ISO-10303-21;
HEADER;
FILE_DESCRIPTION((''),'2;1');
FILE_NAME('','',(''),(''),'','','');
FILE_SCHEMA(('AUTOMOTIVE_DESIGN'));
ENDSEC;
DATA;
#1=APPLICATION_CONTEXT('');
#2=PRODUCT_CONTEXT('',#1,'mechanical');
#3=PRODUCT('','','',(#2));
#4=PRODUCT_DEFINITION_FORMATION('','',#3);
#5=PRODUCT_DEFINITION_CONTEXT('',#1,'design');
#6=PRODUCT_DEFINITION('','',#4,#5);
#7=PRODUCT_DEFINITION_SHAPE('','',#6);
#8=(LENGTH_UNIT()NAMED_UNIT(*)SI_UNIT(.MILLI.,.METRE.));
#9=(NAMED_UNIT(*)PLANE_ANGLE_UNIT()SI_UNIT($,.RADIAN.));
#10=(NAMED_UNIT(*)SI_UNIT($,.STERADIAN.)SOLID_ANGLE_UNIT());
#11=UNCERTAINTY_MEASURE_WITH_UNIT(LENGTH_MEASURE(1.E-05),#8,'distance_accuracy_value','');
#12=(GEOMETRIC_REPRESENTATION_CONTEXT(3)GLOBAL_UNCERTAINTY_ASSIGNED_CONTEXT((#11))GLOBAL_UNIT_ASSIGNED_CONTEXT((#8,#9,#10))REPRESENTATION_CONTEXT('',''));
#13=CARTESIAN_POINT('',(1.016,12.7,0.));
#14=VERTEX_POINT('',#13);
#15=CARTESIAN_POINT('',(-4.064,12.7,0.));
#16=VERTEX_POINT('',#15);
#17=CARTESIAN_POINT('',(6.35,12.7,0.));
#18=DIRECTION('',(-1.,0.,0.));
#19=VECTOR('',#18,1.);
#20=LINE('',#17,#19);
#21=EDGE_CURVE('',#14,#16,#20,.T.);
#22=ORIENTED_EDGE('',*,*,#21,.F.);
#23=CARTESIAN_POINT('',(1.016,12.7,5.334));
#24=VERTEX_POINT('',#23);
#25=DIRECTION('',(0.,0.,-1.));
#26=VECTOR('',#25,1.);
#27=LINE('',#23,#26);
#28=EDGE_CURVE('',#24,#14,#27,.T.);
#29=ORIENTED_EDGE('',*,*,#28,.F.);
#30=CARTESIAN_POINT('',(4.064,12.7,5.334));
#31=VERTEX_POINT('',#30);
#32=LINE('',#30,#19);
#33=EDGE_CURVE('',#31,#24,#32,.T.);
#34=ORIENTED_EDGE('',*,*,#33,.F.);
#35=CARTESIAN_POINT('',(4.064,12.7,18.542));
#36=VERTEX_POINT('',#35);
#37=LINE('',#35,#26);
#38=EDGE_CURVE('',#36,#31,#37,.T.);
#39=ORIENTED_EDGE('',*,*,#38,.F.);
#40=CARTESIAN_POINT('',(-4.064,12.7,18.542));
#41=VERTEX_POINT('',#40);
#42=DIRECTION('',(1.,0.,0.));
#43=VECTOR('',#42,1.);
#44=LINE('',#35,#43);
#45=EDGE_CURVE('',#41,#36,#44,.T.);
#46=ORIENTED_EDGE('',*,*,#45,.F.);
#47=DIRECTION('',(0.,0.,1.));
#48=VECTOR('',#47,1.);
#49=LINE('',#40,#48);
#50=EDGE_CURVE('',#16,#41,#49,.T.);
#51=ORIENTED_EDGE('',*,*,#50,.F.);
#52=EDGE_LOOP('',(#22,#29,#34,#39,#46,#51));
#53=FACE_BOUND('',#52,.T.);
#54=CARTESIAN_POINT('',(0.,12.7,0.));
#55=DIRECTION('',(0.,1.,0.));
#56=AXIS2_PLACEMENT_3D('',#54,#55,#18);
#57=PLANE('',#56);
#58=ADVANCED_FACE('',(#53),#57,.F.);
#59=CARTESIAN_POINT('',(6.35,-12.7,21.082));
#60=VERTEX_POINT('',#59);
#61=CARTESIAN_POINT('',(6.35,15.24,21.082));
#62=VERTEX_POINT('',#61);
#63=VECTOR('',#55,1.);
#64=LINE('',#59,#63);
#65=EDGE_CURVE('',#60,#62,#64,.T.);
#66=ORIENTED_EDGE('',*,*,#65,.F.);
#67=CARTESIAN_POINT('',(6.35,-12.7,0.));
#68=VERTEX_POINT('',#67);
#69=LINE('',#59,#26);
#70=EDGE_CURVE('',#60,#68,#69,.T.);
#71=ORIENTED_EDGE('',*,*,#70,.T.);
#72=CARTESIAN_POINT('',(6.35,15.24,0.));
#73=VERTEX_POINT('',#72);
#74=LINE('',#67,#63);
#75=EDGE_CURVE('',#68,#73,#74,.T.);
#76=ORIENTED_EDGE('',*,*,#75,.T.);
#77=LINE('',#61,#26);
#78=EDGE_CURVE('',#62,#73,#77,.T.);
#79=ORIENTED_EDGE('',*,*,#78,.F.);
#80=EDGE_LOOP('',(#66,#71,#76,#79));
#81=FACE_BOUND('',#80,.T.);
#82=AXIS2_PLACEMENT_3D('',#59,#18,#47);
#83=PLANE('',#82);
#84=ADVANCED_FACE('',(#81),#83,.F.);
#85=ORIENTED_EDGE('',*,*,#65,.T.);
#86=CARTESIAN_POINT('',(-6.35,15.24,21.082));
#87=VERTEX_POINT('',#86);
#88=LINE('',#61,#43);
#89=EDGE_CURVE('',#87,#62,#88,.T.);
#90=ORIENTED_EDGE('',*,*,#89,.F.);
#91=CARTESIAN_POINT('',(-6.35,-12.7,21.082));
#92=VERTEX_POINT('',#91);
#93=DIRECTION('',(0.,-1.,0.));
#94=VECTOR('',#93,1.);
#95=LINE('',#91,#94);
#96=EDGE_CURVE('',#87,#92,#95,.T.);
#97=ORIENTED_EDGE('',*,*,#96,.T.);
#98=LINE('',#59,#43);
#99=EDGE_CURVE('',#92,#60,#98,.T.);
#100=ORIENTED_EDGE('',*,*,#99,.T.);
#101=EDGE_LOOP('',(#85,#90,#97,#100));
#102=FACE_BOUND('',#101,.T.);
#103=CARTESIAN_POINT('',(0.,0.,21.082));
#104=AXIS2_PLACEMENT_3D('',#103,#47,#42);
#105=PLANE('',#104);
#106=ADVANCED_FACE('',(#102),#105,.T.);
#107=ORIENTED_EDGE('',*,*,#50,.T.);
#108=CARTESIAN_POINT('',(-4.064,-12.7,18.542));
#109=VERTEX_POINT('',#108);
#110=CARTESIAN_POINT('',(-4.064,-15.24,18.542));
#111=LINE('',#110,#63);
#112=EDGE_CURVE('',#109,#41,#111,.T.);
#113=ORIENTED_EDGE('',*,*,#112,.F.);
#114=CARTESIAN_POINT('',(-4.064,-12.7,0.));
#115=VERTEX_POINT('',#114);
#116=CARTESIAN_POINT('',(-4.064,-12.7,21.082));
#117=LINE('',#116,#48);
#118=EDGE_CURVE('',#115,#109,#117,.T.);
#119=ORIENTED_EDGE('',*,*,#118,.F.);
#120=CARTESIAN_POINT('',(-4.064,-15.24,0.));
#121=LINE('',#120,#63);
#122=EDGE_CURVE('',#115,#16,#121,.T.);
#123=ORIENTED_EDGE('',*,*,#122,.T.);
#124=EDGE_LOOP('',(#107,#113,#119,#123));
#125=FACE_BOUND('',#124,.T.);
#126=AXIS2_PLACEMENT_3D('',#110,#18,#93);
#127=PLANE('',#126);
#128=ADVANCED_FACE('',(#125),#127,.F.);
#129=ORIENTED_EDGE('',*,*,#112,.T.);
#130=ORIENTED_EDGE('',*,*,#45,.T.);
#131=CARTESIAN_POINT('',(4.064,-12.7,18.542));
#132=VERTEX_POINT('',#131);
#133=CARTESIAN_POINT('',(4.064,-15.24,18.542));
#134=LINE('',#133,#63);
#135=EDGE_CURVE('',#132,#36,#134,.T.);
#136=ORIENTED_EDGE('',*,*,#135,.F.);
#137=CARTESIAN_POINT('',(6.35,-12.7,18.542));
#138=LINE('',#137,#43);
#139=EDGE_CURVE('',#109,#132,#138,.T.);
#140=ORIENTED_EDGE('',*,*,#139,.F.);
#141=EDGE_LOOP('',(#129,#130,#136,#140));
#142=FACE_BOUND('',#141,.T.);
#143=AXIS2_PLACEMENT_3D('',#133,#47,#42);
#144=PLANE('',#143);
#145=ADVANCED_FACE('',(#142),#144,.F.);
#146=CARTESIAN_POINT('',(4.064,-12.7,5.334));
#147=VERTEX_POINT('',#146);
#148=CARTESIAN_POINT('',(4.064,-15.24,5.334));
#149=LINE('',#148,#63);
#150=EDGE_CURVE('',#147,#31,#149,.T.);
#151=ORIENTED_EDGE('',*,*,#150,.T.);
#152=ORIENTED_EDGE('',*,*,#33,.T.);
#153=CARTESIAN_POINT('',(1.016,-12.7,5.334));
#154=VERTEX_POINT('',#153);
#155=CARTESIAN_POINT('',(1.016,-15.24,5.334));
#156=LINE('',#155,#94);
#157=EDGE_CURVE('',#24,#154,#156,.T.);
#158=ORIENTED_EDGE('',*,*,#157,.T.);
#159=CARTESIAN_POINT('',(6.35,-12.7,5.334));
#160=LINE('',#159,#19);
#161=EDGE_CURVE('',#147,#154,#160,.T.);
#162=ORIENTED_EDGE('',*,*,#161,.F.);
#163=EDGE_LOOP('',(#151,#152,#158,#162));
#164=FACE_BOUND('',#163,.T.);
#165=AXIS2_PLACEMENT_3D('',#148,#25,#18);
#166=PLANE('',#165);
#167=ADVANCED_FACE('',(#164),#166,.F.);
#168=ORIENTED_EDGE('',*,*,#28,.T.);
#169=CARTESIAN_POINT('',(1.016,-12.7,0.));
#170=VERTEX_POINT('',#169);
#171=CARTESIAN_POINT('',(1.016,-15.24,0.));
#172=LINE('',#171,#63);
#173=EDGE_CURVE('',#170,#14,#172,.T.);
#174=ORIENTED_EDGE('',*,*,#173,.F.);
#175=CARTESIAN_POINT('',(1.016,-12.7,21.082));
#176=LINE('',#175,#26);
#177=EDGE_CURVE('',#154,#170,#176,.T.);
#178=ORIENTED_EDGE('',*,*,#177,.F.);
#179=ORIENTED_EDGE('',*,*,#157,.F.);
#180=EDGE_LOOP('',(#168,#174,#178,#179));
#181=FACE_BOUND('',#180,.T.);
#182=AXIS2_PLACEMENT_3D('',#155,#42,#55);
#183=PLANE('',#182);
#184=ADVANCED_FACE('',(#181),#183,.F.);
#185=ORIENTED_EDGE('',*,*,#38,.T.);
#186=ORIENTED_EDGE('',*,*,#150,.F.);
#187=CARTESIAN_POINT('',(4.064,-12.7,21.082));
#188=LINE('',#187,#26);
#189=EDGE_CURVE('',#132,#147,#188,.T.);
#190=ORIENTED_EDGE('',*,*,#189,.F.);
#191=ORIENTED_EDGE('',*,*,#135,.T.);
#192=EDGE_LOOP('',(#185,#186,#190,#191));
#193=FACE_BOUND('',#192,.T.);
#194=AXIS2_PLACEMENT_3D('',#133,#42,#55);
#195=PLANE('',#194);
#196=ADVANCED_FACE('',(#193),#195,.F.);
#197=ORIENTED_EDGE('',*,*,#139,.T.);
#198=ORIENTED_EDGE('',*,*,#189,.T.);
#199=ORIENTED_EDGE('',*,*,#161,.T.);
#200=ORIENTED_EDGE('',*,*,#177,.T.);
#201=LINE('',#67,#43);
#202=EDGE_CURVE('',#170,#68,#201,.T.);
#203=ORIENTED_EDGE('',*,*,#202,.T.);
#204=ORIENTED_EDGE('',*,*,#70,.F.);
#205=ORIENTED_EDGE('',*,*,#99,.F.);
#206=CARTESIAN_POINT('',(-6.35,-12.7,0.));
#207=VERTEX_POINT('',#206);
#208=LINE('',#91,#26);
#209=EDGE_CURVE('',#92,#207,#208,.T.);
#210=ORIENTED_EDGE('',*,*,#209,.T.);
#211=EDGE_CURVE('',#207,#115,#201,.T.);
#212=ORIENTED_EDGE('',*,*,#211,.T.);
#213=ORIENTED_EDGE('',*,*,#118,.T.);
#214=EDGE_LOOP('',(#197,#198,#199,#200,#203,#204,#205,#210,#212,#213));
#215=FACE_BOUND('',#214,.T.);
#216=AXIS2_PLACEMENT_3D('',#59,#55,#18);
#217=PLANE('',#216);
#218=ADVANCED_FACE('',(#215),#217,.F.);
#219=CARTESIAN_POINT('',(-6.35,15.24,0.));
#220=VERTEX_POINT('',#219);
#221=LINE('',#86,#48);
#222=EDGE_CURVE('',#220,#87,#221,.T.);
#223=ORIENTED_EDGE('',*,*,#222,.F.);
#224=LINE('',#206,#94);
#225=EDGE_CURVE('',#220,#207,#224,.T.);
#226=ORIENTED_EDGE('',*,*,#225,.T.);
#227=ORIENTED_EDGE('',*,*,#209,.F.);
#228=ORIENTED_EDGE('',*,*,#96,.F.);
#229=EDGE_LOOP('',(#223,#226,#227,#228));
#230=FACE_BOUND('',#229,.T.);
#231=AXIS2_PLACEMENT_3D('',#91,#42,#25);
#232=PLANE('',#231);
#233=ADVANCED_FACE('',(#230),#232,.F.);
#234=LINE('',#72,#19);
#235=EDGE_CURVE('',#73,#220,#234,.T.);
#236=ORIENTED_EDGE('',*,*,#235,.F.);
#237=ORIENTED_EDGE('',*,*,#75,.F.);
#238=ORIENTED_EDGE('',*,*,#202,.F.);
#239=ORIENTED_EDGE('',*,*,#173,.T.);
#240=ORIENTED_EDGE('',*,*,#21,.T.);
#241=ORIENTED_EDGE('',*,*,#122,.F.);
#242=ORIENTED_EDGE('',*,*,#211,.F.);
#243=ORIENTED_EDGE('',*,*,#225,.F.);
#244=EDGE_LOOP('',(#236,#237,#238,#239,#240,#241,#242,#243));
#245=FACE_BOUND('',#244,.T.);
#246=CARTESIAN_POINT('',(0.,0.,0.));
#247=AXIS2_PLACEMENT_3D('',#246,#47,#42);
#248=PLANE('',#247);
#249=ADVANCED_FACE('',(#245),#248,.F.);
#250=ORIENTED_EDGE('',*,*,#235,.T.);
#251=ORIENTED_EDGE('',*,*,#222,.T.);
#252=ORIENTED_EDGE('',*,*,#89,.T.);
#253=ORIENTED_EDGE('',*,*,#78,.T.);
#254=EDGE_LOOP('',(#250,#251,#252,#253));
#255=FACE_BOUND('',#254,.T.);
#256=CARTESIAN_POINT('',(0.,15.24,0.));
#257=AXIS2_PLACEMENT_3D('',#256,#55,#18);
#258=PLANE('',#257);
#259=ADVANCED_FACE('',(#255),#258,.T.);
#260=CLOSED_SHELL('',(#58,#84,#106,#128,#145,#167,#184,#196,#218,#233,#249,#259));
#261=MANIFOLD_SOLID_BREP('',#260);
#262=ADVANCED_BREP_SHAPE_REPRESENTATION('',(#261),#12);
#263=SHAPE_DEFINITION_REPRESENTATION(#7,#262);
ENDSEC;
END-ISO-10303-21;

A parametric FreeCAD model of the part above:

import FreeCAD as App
import Part
import Sketcher

V = App.Vector
Q = App.Units.Quantity

doc = App.newDocument("Part")
params = doc.addObject("Spreadsheet::Sheet", "Params")
for row, (alias, value) in enumerate([
    ("sketch1_height", "1 in"),
    ("sketch1_width", "0.5 in"),
    ("pad1_length", "0.83 in"),
    ("sketch2_width", "0.32 in"),
    ("sketch2_height", "0.52 in"),
    ("pocket1_length", "1.1 in"),
    ("sketch3_width", "0.2 in"),
    ("sketch3_height", "0.21 in"),
    ("pocket2_length", "1.1 in"),
    ("sketch4_width", "0.5 in"),
    ("sketch4_height", "0.83 in"),
    ("pad2_length", "0.1 in"),
], start=1):
    params.set(f"A{row}", alias)
    params.set(f"B{row}", "=" + value)
    params.setAlias(f"B{row}", alias)

body = doc.addObject("PartDesign::Body", "Body")

# Sketch on XY plane
sketch1 = body.newObject("Sketcher::SketchObject", "Sketch")
sketch1.AttachmentSupport = (doc.getObject("XY_Plane"), [""])
sketch1.MapMode = "FlatFace"
sketch1.addGeometry([
    Part.LineSegment(V(-6, 13, 0), V(-6, -13, 0)),
    Part.LineSegment(V(-6, -13, 0), V(6, -13, 0)),
    Part.LineSegment(V(6, -13, 0), V(6, 13, 0)),
    Part.LineSegment(V(6, 13, 0), V(-6, 13, 0)),
], False)
sketch1.addConstraint([
    Sketcher.Constraint("Coincident", 0, 2, 1, 1),
    Sketcher.Constraint("Coincident", 1, 2, 2, 1),
    Sketcher.Constraint("Coincident", 2, 2, 3, 1),
    Sketcher.Constraint("Coincident", 3, 2, 0, 1),
    Sketcher.Constraint("Vertical", 0),
    Sketcher.Constraint("Horizontal", 1),
    Sketcher.Constraint("Vertical", 2),
    Sketcher.Constraint("Horizontal", 3),
    Sketcher.Constraint("Symmetric", 0, 2, 2, 2, -1, 1),
    Sketcher.Constraint("DistanceY", 0, 2, 0, 1, Q("1 in")),
    Sketcher.Constraint("DistanceX", 1, 1, 1, 2, Q("0.5 in")),
])
sketch1.setExpression("Constraints[9]", "Params.sketch1_height")
sketch1.setExpression("Constraints[10]", "Params.sketch1_width")
pad1 = body.newObject("PartDesign::Pad", "Pad")
pad1.Profile = sketch1
pad1.setExpression("Length", "Params.pad1_length")

# Sketch on XZ plane
sketch2 = body.newObject("Sketcher::SketchObject", "Sketch001")
sketch2.AttachmentSupport = (doc.getObject("XZ_Plane"), [""])
sketch2.MapMode = "FlatFace"
sketch2.AttachmentOffset = App.Placement(V(0, 0, -0.5 * 25.4), App.Rotation())
sketch2.addGeometry([
    Part.LineSegment(V(-4, 5, 0), V(-4, 19, 0)),
    Part.LineSegment(V(-4, 19, 0), V(4, 19, 0)),
    Part.LineSegment(V(4, 19, 0), V(4, 5, 0)),
    Part.LineSegment(V(4, 5, 0), V(-4, 5, 0)),
], False)
sketch2.addConstraint([
    Sketcher.Constraint("Coincident", 0, 2, 1, 1),
    Sketcher.Constraint("Coincident", 1, 2, 2, 1),
    Sketcher.Constraint("Coincident", 2, 2, 3, 1),
    Sketcher.Constraint("Coincident", 3, 2, 0, 1),
    Sketcher.Constraint("Vertical", 0),
    Sketcher.Constraint("Horizontal", 1),
    Sketcher.Constraint("Vertical", 2),
    Sketcher.Constraint("Horizontal", 3),
    Sketcher.Constraint("DistanceX", 1, 1, 1, 2, Q("0.32 in")),
    Sketcher.Constraint("DistanceY", 0, 1, 0, 2, Q("0.52 in")),
    Sketcher.Constraint("DistanceX", 0, 2, -1, 1, Q("0.16 in")),
    Sketcher.Constraint("DistanceY", -1, 1, 0, 2, Q("0.73 in")),
])
sketch2.setExpression("Constraints[8]", "Params.sketch2_width")
sketch2.setExpression("Constraints[9]", "Params.sketch2_height")
pocket1 = body.newObject("PartDesign::Pocket", "Pocket")
pocket1.Profile = sketch2
pocket1.setExpression("Length", "Params.pocket1_length")
pocket1.Reversed = True

# Sketch on XZ plane
sketch3 = body.newObject("Sketcher::SketchObject", "Sketch002")
sketch3.AttachmentSupport = (doc.getObject("XZ_Plane"), [""])
sketch3.MapMode = "FlatFace"
sketch3.AttachmentOffset = App.Placement(V(0, 0, -0.5 * 25.4), App.Rotation())
sketch3.addGeometry([
    Part.LineSegment(V(-4, 0, 0), V(-4, 5, 0)),
    Part.LineSegment(V(-4, 5, 0), V(1, 5, 0)),
    Part.LineSegment(V(1, 5, 0), V(1, 0, 0)),
    Part.LineSegment(V(1, 0, 0), V(-4, 0, 0)),
], False)
sketch3.addConstraint([
    Sketcher.Constraint("Coincident", 0, 2, 1, 1),
    Sketcher.Constraint("Coincident", 1, 2, 2, 1),
    Sketcher.Constraint("Coincident", 2, 2, 3, 1),
    Sketcher.Constraint("Coincident", 3, 2, 0, 1),
    Sketcher.Constraint("Vertical", 0),
    Sketcher.Constraint("Horizontal", 1),
    Sketcher.Constraint("Vertical", 2),
    Sketcher.Constraint("Horizontal", 3),
    Sketcher.Constraint("PointOnObject", 2, 2, -1),
    Sketcher.Constraint("DistanceX", 1, 1, 1, 2, Q("0.2 in")),
    Sketcher.Constraint("DistanceY", 0, 1, 0, 2, Q("0.21 in")),
    Sketcher.Constraint("DistanceX", 0, 2, -1, 1, Q("0.16 in")),
])
sketch3.setExpression("Constraints[9]", "Params.sketch3_width")
sketch3.setExpression("Constraints[10]", "Params.sketch3_height")
pocket2 = body.newObject("PartDesign::Pocket", "Pocket001")
pocket2.Profile = sketch3
pocket2.setExpression("Length", "Params.pocket2_length")
pocket2.Reversed = True

# Sketch on XZ plane
sketch4 = body.newObject("Sketcher::SketchObject", "Sketch003")
sketch4.AttachmentSupport = (doc.getObject("XZ_Plane"), [""])
sketch4.MapMode = "FlatFace"
sketch4.AttachmentOffset = App.Placement(V(0, 0, -0.5 * 25.4), App.Rotation())
sketch4.addGeometry([
    Part.LineSegment(V(-6, 0, 0), V(-6, 21, 0)),
    Part.LineSegment(V(-6, 21, 0), V(6, 21, 0)),
    Part.LineSegment(V(6, 21, 0), V(6, 0, 0)),
    Part.LineSegment(V(6, 0, 0), V(-6, 0, 0)),
], False)
sketch4.addConstraint([
    Sketcher.Constraint("Coincident", 0, 2, 1, 1),
    Sketcher.Constraint("Coincident", 1, 2, 2, 1),
    Sketcher.Constraint("Coincident", 2, 2, 3, 1),
    Sketcher.Constraint("Coincident", 3, 2, 0, 1),
    Sketcher.Constraint("Vertical", 0),
    Sketcher.Constraint("Horizontal", 1),
    Sketcher.Constraint("Vertical", 2),
    Sketcher.Constraint("Horizontal", 3),
    Sketcher.Constraint("Symmetric", 2, 2, 3, 2, -1, 1),
    Sketcher.Constraint("DistanceX", 1, 1, 1, 2, Q("0.5 in")),
    Sketcher.Constraint("DistanceY", 0, 1, 0, 2, Q("0.83 in")),
])
sketch4.setExpression("Constraints[9]", "Params.sketch4_width")
sketch4.setExpression("Constraints[10]", "Params.sketch4_height")
pad2 = body.newObject("PartDesign::Pad", "Pad001")
pad2.Profile = sketch4
pad2.setExpression("Length", "Params.pad2_length")
pad2.Reversed = True

doc.recompute()
